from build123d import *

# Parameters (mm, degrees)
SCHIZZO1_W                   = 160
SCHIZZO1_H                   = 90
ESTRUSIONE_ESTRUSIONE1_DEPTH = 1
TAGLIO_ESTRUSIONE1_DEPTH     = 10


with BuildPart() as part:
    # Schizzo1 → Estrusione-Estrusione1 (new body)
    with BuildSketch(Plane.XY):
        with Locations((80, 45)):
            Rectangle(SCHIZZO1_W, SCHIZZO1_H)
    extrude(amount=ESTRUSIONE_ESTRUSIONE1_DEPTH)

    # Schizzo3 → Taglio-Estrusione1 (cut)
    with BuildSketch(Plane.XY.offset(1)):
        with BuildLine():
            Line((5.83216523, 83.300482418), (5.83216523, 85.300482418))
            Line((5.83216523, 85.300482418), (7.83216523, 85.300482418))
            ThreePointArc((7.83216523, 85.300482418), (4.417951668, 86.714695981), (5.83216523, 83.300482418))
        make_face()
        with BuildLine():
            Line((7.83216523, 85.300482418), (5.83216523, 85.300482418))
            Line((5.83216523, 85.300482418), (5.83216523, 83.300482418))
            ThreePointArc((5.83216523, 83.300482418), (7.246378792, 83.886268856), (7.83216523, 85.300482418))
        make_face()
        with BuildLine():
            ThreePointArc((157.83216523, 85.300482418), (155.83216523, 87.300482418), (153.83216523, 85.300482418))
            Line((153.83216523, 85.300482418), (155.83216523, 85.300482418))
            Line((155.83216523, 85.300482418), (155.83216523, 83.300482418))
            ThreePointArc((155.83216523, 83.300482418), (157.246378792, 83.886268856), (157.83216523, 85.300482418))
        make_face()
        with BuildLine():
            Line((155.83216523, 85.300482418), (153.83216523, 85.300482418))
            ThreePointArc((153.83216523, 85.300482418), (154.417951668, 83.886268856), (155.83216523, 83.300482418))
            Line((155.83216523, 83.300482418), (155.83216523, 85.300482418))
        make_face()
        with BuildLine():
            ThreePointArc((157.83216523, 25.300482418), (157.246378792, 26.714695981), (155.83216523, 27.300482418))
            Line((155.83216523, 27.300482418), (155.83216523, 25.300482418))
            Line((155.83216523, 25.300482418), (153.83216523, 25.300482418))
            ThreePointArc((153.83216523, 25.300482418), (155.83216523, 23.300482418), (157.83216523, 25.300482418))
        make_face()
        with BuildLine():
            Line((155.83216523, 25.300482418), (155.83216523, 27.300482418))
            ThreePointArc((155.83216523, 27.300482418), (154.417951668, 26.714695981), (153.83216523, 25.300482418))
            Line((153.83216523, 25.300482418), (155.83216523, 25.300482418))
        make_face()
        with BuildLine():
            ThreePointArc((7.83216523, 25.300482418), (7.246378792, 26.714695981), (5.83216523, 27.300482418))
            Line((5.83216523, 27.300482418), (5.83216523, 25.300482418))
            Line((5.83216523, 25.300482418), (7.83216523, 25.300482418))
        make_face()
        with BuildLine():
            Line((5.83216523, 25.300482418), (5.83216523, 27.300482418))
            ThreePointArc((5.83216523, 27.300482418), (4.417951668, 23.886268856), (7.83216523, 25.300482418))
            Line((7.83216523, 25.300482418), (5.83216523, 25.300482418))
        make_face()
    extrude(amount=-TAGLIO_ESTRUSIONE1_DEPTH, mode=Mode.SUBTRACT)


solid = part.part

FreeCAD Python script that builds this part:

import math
import FreeCAD as App
import Part
import Sketcher
from FreeCAD import Vector
Q = App.Units.Quantity


def add_polygon(sketch, points):
    """Adds a closed chain of lines whose ends are joined by coincident constraints."""
    first, n = sketch.GeometryCount, len(points)
    for a, b in zip(points, points[1:] + points[:1]):
        sketch.addGeometry(Part.LineSegment(App.Vector(*a, 0), App.Vector(*b, 0)), False)
    for i in range(n):
        sketch.addConstraint(Sketcher.Constraint("Coincident", first + i, 2, first + (i + 1) % n, 1))

doc = App.newDocument("Part")
body = doc.addObject("PartDesign::Body", "Body")

# Sketch on XY plane
sketch1 = body.newObject("Sketcher::SketchObject", "Sketch")
sketch1.AttachmentSupport = (doc.getObject("XY_Plane"), [""])
sketch1.MapMode = "FlatFace"
add_polygon(sketch1, [(0, 90), (0, 0), (160, 0), (160, 90)])  # lines 0-3
sketch1.addConstraint(Sketcher.Constraint("Vertical", 0))
sketch1.addConstraint(Sketcher.Constraint("Horizontal", 1))
sketch1.addConstraint(Sketcher.Constraint("Vertical", 2))
sketch1.addConstraint(Sketcher.Constraint("Horizontal", 3))
sketch1.addConstraint(Sketcher.Constraint("Coincident", 0, 2, -1, 1))
sketch1.addConstraint(Sketcher.Constraint("DistanceX", 1, 1, 1, 2, Q("160 mm")))
sketch1.addConstraint(Sketcher.Constraint("DistanceY", 0, 2, 0, 1, Q("90 mm")))
pad1 = body.newObject("PartDesign::Pad", "Pad")
pad1.Profile = sketch1
pad1.Length = 1

# Sketch on XY plane
sketch2 = body.newObject("Sketcher::SketchObject", "Sketch001")
sketch2.AttachmentSupport = (doc.getObject("XY_Plane"), [""])
sketch2.MapMode = "FlatFace"
sketch2.AttachmentOffset = App.Placement(Vector(0, 0, 1), App.Rotation())
sketch2.addGeometry(Part.ArcOfCircle(Part.Circle(Vector(5.8, 85.3, 0), Vector(0, 0, 1), 2), math.radians(0), math.radians(270)), False)
sketch2.addGeometry(Part.ArcOfCircle(Part.Circle(Vector(5.8, 85.3, 0), Vector(0, 0, 1), 2), math.radians(-90), math.radians(0)), False)
sketch2.addGeometry(Part.ArcOfCircle(Part.Circle(Vector(155.8, 85.3, 0), Vector(0, 0, 1), 2), math.radians(0), math.radians(180)), False)
sketch2.addGeometry(Part.ArcOfCircle(Part.Circle(Vector(155.8, 85.3, 0), Vector(0, 0, 1), 2), math.radians(-180), math.radians(-90)), False)
sketch2.addGeometry(Part.ArcOfCircle(Part.Circle(Vector(155.8, 85.3, 0), Vector(0, 0, 1), 2), math.radians(-90), math.radians(0)), False)
sketch2.addGeometry(Part.ArcOfCircle(Part.Circle(Vector(155.8, 25.3, 0), Vector(0, 0, 1), 2), math.radians(0), math.radians(90)), False)
sketch2.addGeometry(Part.ArcOfCircle(Part.Circle(Vector(155.8, 25.3, 0), Vector(0, 0, 1), 2), math.radians(90), math.radians(180)), False)
sketch2.addGeometry(Part.ArcOfCircle(Part.Circle(Vector(155.8, 25.3, 0), Vector(0, 0, 1), 2), math.radians(180), math.radians(360)), False)
sketch2.addGeometry(Part.ArcOfCircle(Part.Circle(Vector(5.8, 25.3, 0), Vector(0, 0, 1), 2), math.radians(0), math.radians(90)), False)
sketch2.addGeometry(Part.ArcOfCircle(Part.Circle(Vector(5.8, 25.3, 0), Vector(0, 0, 1), 2), math.radians(90), math.radians(360)), False)
sketch2.addConstraint(Sketcher.Constraint("Tangent", 0, 1, 1, 2))
sketch2.addConstraint(Sketcher.Constraint("Coincident", 1, 1, 0, 2))
sketch2.addConstraint(Sketcher.Constraint("Tangent", 2, 2, 3, 1))
sketch2.addConstraint(Sketcher.Constraint("Tangent", 3, 2, 4, 1))
sketch2.addConstraint(Sketcher.Constraint("Tangent", 4, 2, 2, 1))
sketch2.addConstraint(Sketcher.Constraint("Tangent", 5, 2, 6, 1))
sketch2.addConstraint(Sketcher.Constraint("Tangent", 6, 2, 7, 1))
sketch2.addConstraint(Sketcher.Constraint("Tangent", 7, 2, 5, 1))
sketch2.addConstraint(Sketcher.Constraint("Tangent", 8, 1, 9, 2))
sketch2.addConstraint(Sketcher.Constraint("Coincident", 9, 1, 8, 2))
sketch2.addConstraint(Sketcher.Constraint("Equal", 1, 2))
sketch2.addConstraint(Sketcher.Constraint("Equal", 4, 5))
sketch2.addConstraint(Sketcher.Constraint("Equal", 7, 8))
sketch2.addConstraint(Sketcher.Constraint("Horizontal", 1, 3, 2, 3))
sketch2.addConstraint(Sketcher.Constraint("Horizontal", 7, 3, 8, 3))
sketch2.addConstraint(Sketcher.Constraint("Horizontal", 4, 3, 0, 1))
sketch2.addConstraint(Sketcher.Constraint("Horizontal", 0, 1, 2, 2))
sketch2.addConstraint(Sketcher.Constraint("Horizontal", 2, 2, 4, 2))
sketch2.addConstraint(Sketcher.Constraint("Horizontal", 9, 3, 6, 2))
sketch2.addConstraint(Sketcher.Constraint("Horizontal", 6, 2, 7, 2))
sketch2.addConstraint(Sketcher.Constraint("Horizontal", 7, 2, 8, 1))
sketch2.addConstraint(Sketcher.Constraint("Vertical", 4, 3, 5, 3))
sketch2.addConstraint(Sketcher.Constraint("Vertical", 1, 3, 8, 3))
sketch2.addConstraint(Sketcher.Constraint("Vertical", 9, 3, 1, 1))
sketch2.addConstraint(Sketcher.Constraint("Vertical", 7, 3, 3, 2))
sketch2.addConstraint(Sketcher.Constraint("Vertical", 3, 2, 5, 2))
sketch2.addConstraint(Sketcher.Constraint("Vertical", 1, 1, 9, 1))
sketch2.addConstraint(Sketcher.Constraint("Radius", 0, Q("2 mm")))
sketch2.addConstraint(Sketcher.Constraint("DistanceX", 0, 3, 2, 3, Q("150 mm")))
sketch2.addConstraint(Sketcher.Constraint("DistanceY", 5, 3, 2, 3, Q("60 mm")))
sketch2.addConstraint(Sketcher.Constraint("DistanceX", -1, 1, 0, 3, Q("5.832165 mm")))
sketch2.addConstraint(Sketcher.Constraint("DistanceY", -1, 1, 0, 3, Q("85.300482 mm")))
pocket1 = body.newObject("PartDesign::Pocket", "Pocket")
pocket1.Profile = sketch2
pocket1.Length = 10

doc.recompute()
